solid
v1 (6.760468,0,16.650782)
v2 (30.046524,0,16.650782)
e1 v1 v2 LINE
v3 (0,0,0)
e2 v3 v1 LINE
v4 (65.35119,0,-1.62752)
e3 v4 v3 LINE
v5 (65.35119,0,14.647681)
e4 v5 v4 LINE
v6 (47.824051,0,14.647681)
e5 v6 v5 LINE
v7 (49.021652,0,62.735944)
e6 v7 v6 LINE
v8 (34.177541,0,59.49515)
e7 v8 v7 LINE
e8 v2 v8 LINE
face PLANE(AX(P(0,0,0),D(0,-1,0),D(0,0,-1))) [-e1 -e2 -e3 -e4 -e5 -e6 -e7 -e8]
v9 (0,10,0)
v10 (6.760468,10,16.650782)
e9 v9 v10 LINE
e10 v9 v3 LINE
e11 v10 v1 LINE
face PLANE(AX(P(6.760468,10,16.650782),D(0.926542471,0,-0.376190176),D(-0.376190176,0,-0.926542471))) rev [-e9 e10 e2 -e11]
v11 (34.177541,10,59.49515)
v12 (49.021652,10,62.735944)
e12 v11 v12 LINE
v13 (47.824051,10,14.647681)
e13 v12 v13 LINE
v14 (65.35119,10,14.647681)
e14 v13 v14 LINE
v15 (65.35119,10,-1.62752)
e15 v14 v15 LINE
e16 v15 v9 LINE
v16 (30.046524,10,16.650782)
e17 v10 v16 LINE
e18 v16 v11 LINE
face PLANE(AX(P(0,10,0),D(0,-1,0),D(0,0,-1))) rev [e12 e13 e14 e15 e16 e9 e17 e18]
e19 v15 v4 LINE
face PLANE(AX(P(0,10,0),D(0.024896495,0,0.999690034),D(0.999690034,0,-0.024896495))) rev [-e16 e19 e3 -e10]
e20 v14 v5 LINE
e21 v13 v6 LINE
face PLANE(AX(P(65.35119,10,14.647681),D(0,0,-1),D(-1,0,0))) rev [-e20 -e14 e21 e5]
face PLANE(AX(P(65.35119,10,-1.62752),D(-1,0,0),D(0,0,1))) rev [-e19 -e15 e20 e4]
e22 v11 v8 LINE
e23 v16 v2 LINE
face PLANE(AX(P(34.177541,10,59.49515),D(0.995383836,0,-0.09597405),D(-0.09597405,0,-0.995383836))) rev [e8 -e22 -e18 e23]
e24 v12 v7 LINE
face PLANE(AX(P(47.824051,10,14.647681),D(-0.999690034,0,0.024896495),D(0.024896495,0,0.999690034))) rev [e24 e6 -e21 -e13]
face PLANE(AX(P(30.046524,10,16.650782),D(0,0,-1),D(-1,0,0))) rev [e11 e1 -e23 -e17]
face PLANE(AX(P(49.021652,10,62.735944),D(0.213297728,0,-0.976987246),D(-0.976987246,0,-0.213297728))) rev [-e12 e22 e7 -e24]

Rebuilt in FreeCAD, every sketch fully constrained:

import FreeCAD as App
import Part
import Sketcher

V = App.Vector
Q = App.Units.Quantity

doc = App.newDocument("Part")
params = doc.addObject("Spreadsheet::Sheet", "Params")
for row, (alias, value) in enumerate([
    ("pad1_length", "10 mm"),
], start=1):
    params.set(f"A{row}", alias)
    params.set(f"B{row}", "=" + value)
    params.setAlias(f"B{row}", alias)

body = doc.addObject("PartDesign::Body", "Body")

sketch1 = body.newObject("Sketcher::SketchObject", "Sketch")
sketch1.AttachmentSupport = (doc.getObject("XZ_Plane"), [""])
sketch1.MapMode = "FlatFace"
sketch1.addGeometry([
    Part.LineSegment(V(65.35119, -1.62752, 0), V(0, 0, 0)),
    Part.LineSegment(V(0, 0, 0), V(6.760468, 16.650782, 0)),
    Part.LineSegment(V(6.760468, 16.650782, 0), V(30.046524, 16.650782, 0)),
    Part.LineSegment(V(30.046524, 16.650782, 0), V(34.177541, 59.49515, 0)),
    Part.LineSegment(V(34.177541, 59.49515, 0), V(49.021652, 62.735944, 0)),
    Part.LineSegment(V(49.021652, 62.735944, 0), V(47.824051, 14.647681, 0)),
    Part.LineSegment(V(47.824051, 14.647681, 0), V(65.35119, 14.647681, 0)),
    Part.LineSegment(V(65.35119, 14.647681, 0), V(65.35119, -1.62752, 0)),
], False)
sketch1.addConstraint([
    Sketcher.Constraint("Coincident", 0, 2, 1, 1),
    Sketcher.Constraint("Coincident", 1, 2, 2, 1),
    Sketcher.Constraint("Coincident", 2, 2, 3, 1),
    Sketcher.Constraint("Coincident", 3, 2, 4, 1),
    Sketcher.Constraint("Coincident", 4, 2, 5, 1),
    Sketcher.Constraint("Coincident", 5, 2, 6, 1),
    Sketcher.Constraint("Coincident", 6, 2, 7, 1),
    Sketcher.Constraint("Coincident", 7, 2, 0, 1),
    Sketcher.Constraint("Horizontal", 2),
    Sketcher.Constraint("Horizontal", 6),
    Sketcher.Constraint("Vertical", 7),
    Sketcher.Constraint("Coincident", 0, 2, -1, 1),
    Sketcher.Constraint("Perpendicular", 0, 5),
    Sketcher.Constraint("DistanceY", 7, 2, 7, 1, Q("16.275201 mm")),
    Sketcher.Constraint("DistanceX", 6, 1, 6, 2, Q("17.527139 mm")),
    Sketcher.Constraint("DistanceY", 5, 2, 2, 2, Q("2.003102 mm")),
    Sketcher.Constraint("DistanceX", 5, 2, 4, 2, Q("1.1976 mm")),
    Sketcher.Constraint("Distance", 1, Q("17.970879 mm")),
    Sketcher.Constraint("Distance", 3, Q("43.043061 mm")),
    Sketcher.Constraint("Distance", 4, Q("15.193761 mm")),
    Sketcher.Constraint("DistanceX", 2, 1, 2, 2, Q("23.286056 mm")),
    Sketcher.Constraint("DistanceX", -1, 1, 3, 2, Q("34.177541 mm")),
    Sketcher.Constraint("DistanceY", -1, 1, 3, 2, Q("59.49515 mm")),
])
pad1 = body.newObject("PartDesign::Pad", "Pad")
pad1.Profile = sketch1
pad1.setExpression("Length", "Params.pad1_length")
pad1.Reversed = True

doc.recompute()
